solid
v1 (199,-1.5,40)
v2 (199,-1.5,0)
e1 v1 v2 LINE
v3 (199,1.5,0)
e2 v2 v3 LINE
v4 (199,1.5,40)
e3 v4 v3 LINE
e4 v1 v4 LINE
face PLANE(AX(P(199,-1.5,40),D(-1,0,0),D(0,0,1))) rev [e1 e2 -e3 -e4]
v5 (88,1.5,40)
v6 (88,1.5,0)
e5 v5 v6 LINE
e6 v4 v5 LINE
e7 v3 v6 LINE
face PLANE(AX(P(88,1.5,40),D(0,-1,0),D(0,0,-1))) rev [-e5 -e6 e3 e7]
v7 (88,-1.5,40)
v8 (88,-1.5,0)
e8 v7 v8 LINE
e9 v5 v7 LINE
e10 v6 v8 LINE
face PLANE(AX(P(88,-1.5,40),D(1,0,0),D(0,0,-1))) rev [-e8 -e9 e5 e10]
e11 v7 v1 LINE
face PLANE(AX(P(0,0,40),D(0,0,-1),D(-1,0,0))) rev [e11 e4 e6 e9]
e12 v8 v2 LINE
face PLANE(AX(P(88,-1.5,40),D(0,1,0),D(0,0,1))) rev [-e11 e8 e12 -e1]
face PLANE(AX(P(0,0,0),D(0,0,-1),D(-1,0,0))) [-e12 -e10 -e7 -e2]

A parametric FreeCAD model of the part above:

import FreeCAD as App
import Part
import Sketcher

V = App.Vector
Q = App.Units.Quantity


def add_polygon(sketch, points):
    """Adds a closed chain of lines whose ends are joined by coincident constraints."""
    first, n = sketch.GeometryCount, len(points)
    for a, b in zip(points, points[1:] + points[:1]):
        sketch.addGeometry(Part.LineSegment(App.Vector(*a, 0), App.Vector(*b, 0)), False)
    for i in range(n):
        sketch.addConstraint(Sketcher.Constraint("Coincident", first + i, 2, first + (i + 1) % n, 1))

doc = App.newDocument("Part")
body = doc.addObject("PartDesign::Body", "Body")

# Sketch on XY plane
sketch1 = doc.addObject("Sketcher::SketchObject", "Sketch")
body.addObject(sketch1)
sketch1.AttachmentSupport = (doc.XY_Plane, [""])
sketch1.MapMode = "FlatFace"
add_polygon(sketch1, [(88, 1.5), (88, -1.5), (199, -1.5), (199, 1.5)])  # lines 0-3
sketch1.addConstraint([
    Sketcher.Constraint("Vertical", 0),
    Sketcher.Constraint("Horizontal", 1),
    Sketcher.Constraint("Vertical", 2),
    Sketcher.Constraint("Horizontal", 3),
    Sketcher.Constraint("DistanceX", 1, 1, 1, 2, Q("111 mm")),
    Sketcher.Constraint("DistanceY", 0, 2, 0, 1, Q("3 mm")),
    Sketcher.Constraint("DistanceX", -1, 1, 0, 2, Q("88 mm")),
    Sketcher.Constraint("DistanceY", 0, 2, -1, 1, Q("1.5 mm")),
])
pad1 = doc.addObject("PartDesign::Pad", "Pad")
body.addObject(pad1)
pad1.Profile = sketch1
pad1.Length = 40

doc.recompute()
